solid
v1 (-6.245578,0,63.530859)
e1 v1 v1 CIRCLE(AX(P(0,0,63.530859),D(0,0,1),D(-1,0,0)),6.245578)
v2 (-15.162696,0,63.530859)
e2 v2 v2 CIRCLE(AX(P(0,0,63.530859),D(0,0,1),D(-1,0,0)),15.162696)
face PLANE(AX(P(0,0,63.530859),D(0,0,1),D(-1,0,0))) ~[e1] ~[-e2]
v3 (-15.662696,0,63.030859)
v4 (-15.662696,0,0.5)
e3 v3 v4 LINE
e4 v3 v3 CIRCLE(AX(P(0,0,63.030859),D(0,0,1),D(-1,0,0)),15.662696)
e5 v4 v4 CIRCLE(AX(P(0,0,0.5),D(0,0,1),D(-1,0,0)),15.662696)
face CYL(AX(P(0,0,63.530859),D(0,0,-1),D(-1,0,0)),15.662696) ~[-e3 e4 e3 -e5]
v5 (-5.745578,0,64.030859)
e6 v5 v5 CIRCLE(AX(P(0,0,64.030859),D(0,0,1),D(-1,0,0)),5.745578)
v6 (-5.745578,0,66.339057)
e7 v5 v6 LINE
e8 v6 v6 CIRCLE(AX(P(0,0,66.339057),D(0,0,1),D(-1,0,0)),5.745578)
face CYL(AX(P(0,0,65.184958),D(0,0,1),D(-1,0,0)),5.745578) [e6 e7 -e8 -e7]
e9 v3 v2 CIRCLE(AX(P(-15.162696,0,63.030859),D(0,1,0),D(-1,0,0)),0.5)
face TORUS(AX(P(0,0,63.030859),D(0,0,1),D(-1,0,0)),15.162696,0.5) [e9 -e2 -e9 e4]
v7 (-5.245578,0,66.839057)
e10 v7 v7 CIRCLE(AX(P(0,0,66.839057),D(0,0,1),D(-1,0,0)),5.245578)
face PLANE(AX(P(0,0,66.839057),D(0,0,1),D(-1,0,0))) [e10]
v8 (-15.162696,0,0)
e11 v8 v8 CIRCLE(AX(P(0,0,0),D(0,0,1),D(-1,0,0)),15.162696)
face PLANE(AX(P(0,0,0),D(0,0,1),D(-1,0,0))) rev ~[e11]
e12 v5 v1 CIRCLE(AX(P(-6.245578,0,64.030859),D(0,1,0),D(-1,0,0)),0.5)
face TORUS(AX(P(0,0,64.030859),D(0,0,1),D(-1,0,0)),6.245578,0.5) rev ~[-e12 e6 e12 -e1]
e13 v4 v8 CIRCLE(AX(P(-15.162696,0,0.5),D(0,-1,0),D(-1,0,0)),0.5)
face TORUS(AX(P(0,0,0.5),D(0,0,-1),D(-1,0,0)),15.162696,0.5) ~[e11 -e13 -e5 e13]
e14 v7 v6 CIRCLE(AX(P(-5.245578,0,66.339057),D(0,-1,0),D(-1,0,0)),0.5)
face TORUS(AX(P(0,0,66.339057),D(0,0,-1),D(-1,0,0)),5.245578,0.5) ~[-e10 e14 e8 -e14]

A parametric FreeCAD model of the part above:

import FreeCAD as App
import Part
import Sketcher

V = App.Vector
Q = App.Units.Quantity


def edges_at(feature, points):
    """Names of the edges that pass closest to the given points."""
    edges = feature.Shape.Edges
    near = lambda p: min(range(len(edges)), key=lambda i: edges[i].distToShape(Part.Vertex(*p))[0])
    return sorted({f"Edge{near(p) + 1}" for p in points})


def add_polygon(sketch, points):
    """Adds a closed chain of lines whose ends are joined by coincident constraints."""
    first, n = sketch.GeometryCount, len(points)
    for a, b in zip(points, points[1:] + points[:1]):
        sketch.addGeometry(Part.LineSegment(App.Vector(*a, 0), App.Vector(*b, 0)), False)
    for i in range(n):
        sketch.addConstraint(Sketcher.Constraint("Coincident", first + i, 2, first + (i + 1) % n, 1))

doc = App.newDocument("Part")
params = doc.addObject("Spreadsheet::Sheet", "Params")
for row, (alias, value) in enumerate([
    ("revolution_angle", "360 deg"),
    ("fillet_radius", "0.5 mm"),
], start=1):
    params.set(f"A{row}", alias)
    params.set(f"B{row}", "=" + value)
    params.setAlias(f"B{row}", alias)

body = doc.addObject("PartDesign::Body", "Body")

sketch1 = body.newObject("Sketcher::SketchObject", "Sketch")
sketch1.AttachmentSupport = (doc.getObject("XZ_Plane"), [""])
sketch1.MapMode = "FlatFace"
add_polygon(sketch1, [(-15.7, 63.5), (-15.7, 0), (0, 0), (0, 66.8), (-5.7, 66.8), (-5.7, 63.5)])
sketch1.addConstraint(Sketcher.Constraint("Vertical", 0))
sketch1.addConstraint(Sketcher.Constraint("Horizontal", 1))
sketch1.addConstraint(Sketcher.Constraint("Vertical", 2))
sketch1.addConstraint(Sketcher.Constraint("Horizontal", 3))
sketch1.addConstraint(Sketcher.Constraint("Vertical", 4))
sketch1.addConstraint(Sketcher.Constraint("Horizontal", 5))
sketch1.addConstraint(Sketcher.Constraint("Coincident", 1, 2, -1, 1))
sketch1.addConstraint(Sketcher.Constraint("DistanceY", 4, 2, 4, 1, Q("3.308198 mm")))
sketch1.addConstraint(Sketcher.Constraint("DistanceY", 0, 2, 0, 1, Q("63.530859 mm")))
sketch1.addConstraint(Sketcher.Constraint("DistanceX", 1, 1, 1, 2, Q("15.662696 mm")))
sketch1.addConstraint(Sketcher.Constraint("DistanceX", 3, 2, 3, 1, Q("5.745578 mm")))
revolution = body.newObject("PartDesign::Revolution", "Revolution")
revolution.Profile = sketch1
revolution.ReferenceAxis = (sketch1, ["V_Axis"])
revolution.setExpression("Angle", "Params.revolution_angle")
doc.recompute()

fillet = body.newObject("PartDesign::Fillet", "Fillet")
fillet.Base = (revolution, edges_at(revolution, [
    (5.746, 0, 66.839),
    (5.746, 0, 63.531),
    (15.663, 0, 63.531),
    (15.663, 0, 0),
]))
fillet.setExpression("Radius", "Params.fillet_radius")

doc.recompute()
